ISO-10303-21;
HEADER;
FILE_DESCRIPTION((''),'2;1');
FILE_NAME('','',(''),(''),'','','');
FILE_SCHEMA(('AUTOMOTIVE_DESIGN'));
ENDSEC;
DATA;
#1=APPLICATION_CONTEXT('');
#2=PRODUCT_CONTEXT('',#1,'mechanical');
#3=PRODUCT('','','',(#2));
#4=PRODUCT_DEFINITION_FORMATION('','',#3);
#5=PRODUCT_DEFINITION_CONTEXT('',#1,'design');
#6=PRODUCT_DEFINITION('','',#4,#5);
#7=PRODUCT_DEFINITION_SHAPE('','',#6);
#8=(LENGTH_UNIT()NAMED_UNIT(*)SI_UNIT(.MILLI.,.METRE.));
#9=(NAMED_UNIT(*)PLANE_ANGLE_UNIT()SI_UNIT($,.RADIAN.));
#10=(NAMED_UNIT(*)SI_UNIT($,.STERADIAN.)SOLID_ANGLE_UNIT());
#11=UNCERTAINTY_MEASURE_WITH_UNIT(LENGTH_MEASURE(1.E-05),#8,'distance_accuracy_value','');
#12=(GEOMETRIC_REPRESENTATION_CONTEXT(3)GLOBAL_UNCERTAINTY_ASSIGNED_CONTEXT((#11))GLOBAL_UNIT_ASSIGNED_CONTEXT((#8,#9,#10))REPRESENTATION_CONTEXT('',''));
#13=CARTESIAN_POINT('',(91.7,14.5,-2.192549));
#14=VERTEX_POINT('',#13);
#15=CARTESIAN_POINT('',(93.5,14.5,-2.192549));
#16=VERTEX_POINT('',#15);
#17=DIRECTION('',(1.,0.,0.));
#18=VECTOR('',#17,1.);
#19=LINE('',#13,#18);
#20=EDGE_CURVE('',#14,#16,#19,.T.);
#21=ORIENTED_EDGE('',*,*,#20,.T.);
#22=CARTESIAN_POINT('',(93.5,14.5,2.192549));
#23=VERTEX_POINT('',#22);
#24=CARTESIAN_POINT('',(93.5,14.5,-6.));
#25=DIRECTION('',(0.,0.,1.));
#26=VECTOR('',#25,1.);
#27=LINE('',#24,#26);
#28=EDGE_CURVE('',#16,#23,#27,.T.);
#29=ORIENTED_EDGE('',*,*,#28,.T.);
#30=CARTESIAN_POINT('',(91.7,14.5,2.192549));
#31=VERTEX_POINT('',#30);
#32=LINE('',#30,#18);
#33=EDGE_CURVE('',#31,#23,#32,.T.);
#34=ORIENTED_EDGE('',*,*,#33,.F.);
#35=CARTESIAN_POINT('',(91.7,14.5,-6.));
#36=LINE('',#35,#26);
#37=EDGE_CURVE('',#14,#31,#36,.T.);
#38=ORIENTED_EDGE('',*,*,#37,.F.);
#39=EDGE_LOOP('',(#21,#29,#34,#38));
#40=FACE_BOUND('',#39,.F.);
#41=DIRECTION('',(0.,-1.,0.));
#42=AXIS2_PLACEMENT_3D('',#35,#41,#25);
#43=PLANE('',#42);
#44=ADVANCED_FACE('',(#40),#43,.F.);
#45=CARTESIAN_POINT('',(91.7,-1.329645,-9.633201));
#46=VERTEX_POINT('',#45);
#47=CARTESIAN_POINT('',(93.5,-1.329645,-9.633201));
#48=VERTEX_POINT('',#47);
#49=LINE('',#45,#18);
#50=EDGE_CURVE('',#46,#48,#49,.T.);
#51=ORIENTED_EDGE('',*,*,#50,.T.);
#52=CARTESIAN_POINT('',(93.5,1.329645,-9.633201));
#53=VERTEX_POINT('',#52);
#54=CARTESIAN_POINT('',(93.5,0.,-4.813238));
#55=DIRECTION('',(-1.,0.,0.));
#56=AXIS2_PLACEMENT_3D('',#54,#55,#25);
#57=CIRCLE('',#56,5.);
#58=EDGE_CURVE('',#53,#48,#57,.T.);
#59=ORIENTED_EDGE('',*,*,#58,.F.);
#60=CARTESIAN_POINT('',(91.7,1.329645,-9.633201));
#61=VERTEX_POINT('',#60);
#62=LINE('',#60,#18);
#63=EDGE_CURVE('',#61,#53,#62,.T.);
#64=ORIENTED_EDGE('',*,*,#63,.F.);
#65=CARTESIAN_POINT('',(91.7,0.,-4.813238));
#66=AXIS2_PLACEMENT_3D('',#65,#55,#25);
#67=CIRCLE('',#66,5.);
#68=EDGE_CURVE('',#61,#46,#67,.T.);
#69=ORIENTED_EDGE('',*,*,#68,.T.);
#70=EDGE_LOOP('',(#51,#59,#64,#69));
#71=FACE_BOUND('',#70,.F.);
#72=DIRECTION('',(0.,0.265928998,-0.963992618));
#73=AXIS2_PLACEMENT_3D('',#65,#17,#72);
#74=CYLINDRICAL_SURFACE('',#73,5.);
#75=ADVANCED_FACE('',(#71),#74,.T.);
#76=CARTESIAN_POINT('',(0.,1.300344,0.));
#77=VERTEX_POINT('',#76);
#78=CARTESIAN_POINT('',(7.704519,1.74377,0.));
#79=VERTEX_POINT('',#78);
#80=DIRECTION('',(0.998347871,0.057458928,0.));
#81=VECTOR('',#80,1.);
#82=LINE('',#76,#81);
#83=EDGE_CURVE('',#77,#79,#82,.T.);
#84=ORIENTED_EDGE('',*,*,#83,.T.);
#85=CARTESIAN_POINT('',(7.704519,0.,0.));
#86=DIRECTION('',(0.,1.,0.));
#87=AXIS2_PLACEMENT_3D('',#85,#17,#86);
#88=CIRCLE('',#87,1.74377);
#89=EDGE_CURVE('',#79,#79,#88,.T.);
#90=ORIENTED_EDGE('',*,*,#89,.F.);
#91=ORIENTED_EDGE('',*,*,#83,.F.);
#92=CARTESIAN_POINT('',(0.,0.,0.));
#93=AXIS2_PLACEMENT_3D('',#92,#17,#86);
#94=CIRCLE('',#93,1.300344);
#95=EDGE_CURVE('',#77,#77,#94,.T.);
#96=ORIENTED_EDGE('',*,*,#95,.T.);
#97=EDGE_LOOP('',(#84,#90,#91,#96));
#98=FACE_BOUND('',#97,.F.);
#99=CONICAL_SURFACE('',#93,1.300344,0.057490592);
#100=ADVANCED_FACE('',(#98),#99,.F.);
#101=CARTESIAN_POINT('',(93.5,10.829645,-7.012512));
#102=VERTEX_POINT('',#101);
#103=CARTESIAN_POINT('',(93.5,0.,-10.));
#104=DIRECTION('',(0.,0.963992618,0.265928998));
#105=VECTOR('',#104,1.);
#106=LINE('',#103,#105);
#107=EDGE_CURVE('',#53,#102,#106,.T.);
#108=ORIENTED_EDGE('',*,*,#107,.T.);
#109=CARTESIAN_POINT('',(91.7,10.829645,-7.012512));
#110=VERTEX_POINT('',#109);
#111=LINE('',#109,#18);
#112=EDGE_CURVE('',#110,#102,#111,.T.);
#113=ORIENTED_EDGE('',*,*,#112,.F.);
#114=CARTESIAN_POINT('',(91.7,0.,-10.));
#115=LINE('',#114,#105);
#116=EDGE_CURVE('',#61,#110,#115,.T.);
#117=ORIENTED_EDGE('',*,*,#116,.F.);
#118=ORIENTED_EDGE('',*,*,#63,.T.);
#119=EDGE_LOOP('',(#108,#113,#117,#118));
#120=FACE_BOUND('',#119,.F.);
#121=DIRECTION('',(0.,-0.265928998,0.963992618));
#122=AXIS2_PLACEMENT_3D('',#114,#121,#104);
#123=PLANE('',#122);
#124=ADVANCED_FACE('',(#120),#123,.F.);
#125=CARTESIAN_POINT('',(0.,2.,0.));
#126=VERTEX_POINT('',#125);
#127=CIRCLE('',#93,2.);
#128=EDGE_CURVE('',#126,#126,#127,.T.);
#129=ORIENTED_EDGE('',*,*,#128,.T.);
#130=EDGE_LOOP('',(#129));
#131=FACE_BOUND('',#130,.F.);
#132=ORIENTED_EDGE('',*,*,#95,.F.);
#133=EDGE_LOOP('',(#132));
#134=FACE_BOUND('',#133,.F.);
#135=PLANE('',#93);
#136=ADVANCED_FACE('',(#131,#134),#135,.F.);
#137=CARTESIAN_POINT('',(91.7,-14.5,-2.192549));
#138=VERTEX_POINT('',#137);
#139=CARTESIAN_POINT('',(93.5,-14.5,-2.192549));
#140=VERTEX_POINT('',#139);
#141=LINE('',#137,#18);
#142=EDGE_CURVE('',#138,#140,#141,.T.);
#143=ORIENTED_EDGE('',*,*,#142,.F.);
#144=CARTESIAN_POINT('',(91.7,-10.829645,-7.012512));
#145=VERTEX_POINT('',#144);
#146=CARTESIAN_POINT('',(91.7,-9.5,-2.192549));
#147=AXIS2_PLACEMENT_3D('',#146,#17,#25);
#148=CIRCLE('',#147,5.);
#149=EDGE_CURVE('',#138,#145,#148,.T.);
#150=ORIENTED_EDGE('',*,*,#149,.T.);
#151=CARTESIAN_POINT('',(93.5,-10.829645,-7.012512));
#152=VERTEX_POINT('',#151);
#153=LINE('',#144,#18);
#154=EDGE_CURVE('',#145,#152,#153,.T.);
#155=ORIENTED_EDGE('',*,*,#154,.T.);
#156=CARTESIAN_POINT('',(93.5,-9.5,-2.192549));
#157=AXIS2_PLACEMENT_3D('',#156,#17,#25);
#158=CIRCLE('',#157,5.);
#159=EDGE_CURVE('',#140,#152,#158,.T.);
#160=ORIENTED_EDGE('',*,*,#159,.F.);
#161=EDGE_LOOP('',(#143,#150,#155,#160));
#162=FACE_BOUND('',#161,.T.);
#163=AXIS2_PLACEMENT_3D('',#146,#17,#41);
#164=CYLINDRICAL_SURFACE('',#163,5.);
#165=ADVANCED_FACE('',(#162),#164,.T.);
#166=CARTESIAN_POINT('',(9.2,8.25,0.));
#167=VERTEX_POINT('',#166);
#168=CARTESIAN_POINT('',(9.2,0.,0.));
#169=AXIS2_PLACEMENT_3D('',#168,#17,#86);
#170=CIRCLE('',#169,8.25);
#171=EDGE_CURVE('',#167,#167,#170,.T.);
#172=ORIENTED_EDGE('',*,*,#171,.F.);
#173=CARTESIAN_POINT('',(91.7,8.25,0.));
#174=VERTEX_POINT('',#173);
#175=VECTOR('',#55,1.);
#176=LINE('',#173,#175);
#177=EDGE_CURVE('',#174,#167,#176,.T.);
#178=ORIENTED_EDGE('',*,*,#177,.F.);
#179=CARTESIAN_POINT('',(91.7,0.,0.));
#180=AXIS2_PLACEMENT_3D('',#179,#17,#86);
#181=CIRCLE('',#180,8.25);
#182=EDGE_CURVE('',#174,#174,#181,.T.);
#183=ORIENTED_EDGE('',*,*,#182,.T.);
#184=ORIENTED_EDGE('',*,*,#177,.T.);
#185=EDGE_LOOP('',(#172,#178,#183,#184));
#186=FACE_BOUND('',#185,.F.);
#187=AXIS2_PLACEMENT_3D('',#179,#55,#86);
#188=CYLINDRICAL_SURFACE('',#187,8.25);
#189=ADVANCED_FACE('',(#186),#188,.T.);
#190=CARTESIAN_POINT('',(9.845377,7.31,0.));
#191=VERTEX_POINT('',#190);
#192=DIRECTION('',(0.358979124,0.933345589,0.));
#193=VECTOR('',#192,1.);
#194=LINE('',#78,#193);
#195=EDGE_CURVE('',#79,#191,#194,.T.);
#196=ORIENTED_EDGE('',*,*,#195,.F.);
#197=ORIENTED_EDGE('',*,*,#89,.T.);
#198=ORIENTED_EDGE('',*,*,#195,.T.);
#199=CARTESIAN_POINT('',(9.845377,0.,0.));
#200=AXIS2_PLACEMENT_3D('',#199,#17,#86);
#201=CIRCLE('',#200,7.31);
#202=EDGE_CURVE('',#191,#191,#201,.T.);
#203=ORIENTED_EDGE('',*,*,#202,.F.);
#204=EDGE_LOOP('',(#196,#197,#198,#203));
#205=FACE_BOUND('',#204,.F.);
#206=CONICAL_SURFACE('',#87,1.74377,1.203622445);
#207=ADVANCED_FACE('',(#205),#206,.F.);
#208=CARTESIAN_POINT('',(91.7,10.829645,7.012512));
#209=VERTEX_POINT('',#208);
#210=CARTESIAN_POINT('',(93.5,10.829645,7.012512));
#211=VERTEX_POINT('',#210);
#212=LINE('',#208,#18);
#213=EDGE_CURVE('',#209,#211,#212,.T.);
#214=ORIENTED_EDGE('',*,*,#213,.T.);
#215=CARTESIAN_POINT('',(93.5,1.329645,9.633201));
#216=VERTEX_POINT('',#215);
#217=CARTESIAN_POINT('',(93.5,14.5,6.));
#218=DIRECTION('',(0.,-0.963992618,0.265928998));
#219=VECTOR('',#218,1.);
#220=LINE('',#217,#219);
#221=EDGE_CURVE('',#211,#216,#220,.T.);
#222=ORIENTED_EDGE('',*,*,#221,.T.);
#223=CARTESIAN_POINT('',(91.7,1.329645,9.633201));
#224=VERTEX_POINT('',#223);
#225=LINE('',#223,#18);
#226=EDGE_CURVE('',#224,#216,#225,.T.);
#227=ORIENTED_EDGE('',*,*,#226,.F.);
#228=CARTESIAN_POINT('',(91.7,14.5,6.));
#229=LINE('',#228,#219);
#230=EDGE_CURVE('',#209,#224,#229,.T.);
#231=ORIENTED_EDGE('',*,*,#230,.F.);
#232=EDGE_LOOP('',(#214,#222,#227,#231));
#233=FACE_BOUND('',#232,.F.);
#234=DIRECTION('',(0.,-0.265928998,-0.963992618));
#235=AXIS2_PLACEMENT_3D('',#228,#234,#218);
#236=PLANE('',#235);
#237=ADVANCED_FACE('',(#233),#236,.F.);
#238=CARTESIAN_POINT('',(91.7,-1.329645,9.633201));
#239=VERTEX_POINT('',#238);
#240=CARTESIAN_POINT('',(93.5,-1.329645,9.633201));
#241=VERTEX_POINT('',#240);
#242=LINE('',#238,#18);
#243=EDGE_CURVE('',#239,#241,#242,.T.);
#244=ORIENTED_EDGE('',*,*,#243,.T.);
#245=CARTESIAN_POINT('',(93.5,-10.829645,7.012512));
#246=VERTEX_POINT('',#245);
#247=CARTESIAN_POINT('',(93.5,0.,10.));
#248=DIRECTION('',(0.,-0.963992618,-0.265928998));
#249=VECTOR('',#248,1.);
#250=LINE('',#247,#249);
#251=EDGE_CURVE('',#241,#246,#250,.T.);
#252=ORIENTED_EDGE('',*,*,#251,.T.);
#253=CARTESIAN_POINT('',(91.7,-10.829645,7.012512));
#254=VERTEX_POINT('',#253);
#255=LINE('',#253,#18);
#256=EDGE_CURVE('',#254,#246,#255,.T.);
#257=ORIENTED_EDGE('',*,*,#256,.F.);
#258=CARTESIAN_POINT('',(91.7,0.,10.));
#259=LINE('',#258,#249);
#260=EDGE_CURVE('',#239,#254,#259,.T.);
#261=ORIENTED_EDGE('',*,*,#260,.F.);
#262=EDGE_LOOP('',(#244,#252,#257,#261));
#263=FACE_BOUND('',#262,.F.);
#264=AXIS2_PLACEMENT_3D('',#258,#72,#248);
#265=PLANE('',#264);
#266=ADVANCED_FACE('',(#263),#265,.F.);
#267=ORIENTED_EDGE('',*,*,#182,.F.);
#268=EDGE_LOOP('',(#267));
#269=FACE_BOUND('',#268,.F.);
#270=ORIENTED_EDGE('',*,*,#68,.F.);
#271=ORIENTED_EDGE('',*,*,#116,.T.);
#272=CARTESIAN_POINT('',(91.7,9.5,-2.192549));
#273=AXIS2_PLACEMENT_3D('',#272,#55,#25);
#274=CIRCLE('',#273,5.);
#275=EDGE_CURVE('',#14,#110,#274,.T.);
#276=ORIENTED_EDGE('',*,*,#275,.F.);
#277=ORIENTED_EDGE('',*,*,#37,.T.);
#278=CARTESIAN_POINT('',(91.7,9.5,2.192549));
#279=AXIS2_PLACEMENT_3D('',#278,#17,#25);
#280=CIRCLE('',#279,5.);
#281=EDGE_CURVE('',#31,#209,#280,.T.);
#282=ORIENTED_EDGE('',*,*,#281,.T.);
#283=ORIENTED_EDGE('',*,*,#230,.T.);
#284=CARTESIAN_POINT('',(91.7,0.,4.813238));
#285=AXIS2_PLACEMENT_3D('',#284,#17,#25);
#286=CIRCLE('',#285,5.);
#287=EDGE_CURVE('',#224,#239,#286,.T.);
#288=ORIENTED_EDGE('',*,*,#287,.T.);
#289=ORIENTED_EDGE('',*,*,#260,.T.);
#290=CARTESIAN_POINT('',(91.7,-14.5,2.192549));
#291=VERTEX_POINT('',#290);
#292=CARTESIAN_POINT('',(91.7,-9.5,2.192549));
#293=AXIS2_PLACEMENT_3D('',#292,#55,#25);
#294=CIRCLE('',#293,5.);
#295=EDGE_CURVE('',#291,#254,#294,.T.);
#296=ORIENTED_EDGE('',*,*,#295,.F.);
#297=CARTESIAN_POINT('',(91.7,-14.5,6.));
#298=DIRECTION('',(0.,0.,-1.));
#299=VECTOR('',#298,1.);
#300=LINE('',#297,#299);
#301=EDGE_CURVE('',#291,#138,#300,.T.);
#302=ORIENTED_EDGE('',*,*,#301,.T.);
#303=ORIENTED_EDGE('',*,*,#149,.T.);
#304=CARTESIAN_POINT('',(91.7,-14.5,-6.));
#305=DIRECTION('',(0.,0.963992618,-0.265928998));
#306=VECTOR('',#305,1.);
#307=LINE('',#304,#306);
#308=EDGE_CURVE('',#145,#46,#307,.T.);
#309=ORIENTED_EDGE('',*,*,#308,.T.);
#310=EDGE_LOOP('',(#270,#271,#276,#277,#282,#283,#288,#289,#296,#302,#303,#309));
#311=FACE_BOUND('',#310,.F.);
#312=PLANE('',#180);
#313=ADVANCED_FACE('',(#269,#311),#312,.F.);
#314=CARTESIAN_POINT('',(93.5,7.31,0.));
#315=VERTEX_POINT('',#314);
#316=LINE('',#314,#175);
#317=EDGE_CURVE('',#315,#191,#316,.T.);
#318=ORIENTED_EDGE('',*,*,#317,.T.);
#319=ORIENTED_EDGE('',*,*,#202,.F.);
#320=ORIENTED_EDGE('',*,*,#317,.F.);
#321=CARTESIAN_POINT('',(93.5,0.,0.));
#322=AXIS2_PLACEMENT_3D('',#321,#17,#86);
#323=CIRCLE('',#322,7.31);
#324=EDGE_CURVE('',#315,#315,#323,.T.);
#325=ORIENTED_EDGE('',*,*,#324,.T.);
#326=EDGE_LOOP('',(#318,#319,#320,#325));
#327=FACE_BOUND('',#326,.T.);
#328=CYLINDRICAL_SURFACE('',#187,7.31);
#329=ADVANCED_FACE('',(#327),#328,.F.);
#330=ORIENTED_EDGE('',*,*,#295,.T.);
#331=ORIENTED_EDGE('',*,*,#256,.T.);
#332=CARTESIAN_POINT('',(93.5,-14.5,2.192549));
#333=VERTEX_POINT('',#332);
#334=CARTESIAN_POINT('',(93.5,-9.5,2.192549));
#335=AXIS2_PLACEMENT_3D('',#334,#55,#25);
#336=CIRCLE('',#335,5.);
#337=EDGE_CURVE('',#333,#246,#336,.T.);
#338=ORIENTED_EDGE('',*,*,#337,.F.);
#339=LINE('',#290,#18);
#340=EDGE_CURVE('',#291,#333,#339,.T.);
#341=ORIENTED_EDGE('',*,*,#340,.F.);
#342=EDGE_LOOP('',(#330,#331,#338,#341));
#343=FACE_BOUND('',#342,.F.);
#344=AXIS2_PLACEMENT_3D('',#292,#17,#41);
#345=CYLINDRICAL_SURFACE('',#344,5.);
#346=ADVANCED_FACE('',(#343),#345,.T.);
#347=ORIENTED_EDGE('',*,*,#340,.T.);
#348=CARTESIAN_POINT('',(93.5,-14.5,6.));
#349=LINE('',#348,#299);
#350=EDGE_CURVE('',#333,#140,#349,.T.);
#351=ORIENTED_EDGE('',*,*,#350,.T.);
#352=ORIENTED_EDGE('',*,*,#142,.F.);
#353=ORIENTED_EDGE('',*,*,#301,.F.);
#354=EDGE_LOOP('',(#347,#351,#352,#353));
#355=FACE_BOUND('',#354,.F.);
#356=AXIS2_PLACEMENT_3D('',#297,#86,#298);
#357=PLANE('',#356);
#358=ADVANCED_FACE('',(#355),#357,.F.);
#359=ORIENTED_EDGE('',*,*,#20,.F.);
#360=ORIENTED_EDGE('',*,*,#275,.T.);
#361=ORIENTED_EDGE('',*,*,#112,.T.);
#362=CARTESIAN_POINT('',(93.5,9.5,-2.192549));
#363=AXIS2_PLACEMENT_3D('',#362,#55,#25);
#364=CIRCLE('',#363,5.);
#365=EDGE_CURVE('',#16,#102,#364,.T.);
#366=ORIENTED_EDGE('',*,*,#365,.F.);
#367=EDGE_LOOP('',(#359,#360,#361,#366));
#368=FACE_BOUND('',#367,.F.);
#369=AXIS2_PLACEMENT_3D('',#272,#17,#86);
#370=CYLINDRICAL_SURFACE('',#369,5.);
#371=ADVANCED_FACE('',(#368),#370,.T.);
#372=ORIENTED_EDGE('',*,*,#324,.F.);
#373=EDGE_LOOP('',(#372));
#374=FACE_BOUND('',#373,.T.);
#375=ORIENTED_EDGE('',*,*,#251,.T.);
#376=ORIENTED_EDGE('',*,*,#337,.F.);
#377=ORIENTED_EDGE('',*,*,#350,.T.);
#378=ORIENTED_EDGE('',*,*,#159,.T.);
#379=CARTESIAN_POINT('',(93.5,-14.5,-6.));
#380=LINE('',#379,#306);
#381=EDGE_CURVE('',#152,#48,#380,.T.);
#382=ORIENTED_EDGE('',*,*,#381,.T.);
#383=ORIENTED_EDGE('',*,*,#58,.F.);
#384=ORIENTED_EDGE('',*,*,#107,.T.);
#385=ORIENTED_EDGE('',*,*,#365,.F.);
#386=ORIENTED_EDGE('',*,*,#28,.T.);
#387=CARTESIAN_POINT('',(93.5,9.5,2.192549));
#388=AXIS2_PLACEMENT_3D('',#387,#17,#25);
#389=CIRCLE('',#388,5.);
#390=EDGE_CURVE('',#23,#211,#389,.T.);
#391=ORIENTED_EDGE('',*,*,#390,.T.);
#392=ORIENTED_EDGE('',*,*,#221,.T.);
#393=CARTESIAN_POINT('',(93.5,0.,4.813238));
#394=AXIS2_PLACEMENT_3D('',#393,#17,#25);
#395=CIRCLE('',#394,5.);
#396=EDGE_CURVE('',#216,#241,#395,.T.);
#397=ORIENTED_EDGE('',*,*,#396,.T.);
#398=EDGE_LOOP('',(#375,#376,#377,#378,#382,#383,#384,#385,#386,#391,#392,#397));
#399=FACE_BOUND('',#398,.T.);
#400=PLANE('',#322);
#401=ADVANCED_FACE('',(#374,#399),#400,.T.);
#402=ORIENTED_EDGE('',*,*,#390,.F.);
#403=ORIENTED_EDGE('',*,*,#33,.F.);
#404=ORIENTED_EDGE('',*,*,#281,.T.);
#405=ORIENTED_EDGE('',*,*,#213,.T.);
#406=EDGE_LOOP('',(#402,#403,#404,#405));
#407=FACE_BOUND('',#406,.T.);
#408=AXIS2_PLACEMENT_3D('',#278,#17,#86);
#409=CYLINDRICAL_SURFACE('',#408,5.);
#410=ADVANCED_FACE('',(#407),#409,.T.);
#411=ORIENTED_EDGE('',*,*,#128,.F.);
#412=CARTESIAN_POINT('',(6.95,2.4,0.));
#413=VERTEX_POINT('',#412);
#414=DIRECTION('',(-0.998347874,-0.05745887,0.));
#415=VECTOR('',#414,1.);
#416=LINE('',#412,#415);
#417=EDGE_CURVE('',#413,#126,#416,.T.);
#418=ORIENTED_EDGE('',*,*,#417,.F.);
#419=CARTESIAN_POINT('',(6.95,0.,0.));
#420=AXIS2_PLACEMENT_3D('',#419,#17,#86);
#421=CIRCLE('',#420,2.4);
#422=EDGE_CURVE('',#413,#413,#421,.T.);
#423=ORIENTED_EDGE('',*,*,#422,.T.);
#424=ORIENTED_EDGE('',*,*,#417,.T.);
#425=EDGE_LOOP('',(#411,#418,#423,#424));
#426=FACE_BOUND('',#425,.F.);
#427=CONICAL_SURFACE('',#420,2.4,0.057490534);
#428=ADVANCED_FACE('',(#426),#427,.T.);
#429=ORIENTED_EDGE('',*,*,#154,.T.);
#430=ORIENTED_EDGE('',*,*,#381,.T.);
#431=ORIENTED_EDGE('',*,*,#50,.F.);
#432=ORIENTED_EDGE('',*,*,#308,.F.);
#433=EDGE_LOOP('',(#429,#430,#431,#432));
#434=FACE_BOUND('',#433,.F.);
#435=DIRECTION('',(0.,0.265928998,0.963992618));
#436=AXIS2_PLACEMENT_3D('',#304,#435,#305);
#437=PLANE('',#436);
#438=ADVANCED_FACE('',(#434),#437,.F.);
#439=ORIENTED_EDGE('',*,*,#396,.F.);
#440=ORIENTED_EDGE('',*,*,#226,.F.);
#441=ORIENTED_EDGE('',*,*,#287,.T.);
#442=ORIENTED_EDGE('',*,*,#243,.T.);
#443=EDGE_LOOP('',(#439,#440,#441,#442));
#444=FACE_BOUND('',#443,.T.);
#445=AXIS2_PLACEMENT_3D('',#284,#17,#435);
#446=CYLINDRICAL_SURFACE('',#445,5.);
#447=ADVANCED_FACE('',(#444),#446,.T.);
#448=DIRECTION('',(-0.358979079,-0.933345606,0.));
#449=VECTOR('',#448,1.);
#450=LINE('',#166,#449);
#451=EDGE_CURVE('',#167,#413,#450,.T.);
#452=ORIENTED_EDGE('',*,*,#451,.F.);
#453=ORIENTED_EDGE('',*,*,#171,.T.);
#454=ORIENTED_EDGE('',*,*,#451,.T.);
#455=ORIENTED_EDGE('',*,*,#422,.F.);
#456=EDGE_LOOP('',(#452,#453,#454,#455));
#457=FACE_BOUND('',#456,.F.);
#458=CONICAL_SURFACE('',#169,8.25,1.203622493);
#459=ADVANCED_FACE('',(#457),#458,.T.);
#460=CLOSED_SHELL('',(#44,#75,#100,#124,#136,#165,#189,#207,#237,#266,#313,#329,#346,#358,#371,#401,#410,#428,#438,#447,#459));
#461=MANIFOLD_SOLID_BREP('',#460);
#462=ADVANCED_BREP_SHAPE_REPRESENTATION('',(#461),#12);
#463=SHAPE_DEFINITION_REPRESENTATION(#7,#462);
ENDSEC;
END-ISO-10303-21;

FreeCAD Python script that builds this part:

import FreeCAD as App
import Part
import Sketcher
Q = App.Units.Quantity


def edges_at(feature, points):
    """Names of the edges that pass closest to the given points."""
    edges = feature.Shape.Edges
    near = lambda p: min(range(len(edges)), key=lambda i: edges[i].distToShape(Part.Vertex(*p))[0])
    return sorted({f"Edge{near(p) + 1}" for p in points})


def add_polygon(sketch, points):
    """Adds a closed chain of lines whose ends are joined by coincident constraints."""
    first, n = sketch.GeometryCount, len(points)
    for a, b in zip(points, points[1:] + points[:1]):
        sketch.addGeometry(Part.LineSegment(App.Vector(*a, 0), App.Vector(*b, 0)), False)
    for i in range(n):
        sketch.addConstraint(Sketcher.Constraint("Coincident", first + i, 2, first + (i + 1) % n, 1))

doc = App.newDocument("Part")
params = doc.addObject("Spreadsheet::Sheet", "Params")
for row, (alias, value) in enumerate([
    ("sketch1_width", "82.5 mm"),
    ("sketch1_height", "0.94 mm"),
    ("revolution_angle", "360 deg"),
    ("sketch2_diameter", "14.62 mm"),
    ("sketch2_height", "12 mm"),
    ("pad1_length", "1.8 mm"),
    ("fillet_radius", "5 mm"),
], start=1):
    params.set(f"A{row}", alias)
    params.set(f"B{row}", "=" + value)
    params.setAlias(f"B{row}", alias)

body = doc.addObject("PartDesign::Body", "Body")

sketch1 = body.newObject("Sketcher::SketchObject", "Sketch")
sketch1.AttachmentSupport = (doc.getObject("XY_Plane"), [""])
sketch1.MapMode = "FlatFace"
add_polygon(sketch1, [(91.7, 8.2), (9.2, 8.2), (7, 2.4), (0, 2), (0, 1.3), (7.7, 1.7), (9.8, 7.3), (91.7, 7.3)])
sketch1.addConstraint([
    Sketcher.Constraint("Horizontal", 0),
    Sketcher.Constraint("Vertical", 3),
    Sketcher.Constraint("Horizontal", 6),
    Sketcher.Constraint("Vertical", 7),
    Sketcher.Constraint("PointOnObject", 2, 2, -2),
    Sketcher.Constraint("Parallel", 2, 4),
    Sketcher.Constraint("Parallel", 1, 5),
    Sketcher.Constraint("DistanceX", 0, 2, 0, 1, Q("82.5 mm")),
    Sketcher.Constraint("DistanceY", -1, 1, 2, 2, Q("2 mm")),
    Sketcher.Constraint("DistanceY", 7, 1, 7, 2, Q("0.94 mm")),
    Sketcher.Constraint("DistanceX", -1, 1, 0, 2, Q("9.2 mm")),
    Sketcher.Constraint("DistanceY", -1, 1, 1, 2, Q("2.4 mm")),
    Sketcher.Constraint("DistanceY", -1, 1, 0, 2, Q("8.25 mm")),
    Sketcher.Constraint("DistanceX", -1, 1, 1, 2, Q("6.95 mm")),
    Sketcher.Constraint("Distance", 4, Q("7.717269 mm")),
    Sketcher.Constraint("Distance", 5, Q("5.96374 mm")),
])
sketch1.setExpression("Constraints[15]", "Params.sketch1_width")
sketch1.setExpression("Constraints[17]", "Params.sketch1_height")
revolution = body.newObject("PartDesign::Revolution", "Revolution")
revolution.Profile = sketch1
revolution.ReferenceAxis = (sketch1, ["H_Axis"])
revolution.setExpression("Angle", "Params.revolution_angle")

sketch2 = body.newObject("Sketcher::SketchObject", "Sketch001")
sketch2.AttachmentSupport = (doc.getObject("YZ_Plane"), [""])
sketch2.MapMode = "FlatFace"
sketch2.AttachmentOffset = App.Placement(App.Vector(0, 0, 91.7), App.Rotation())
add_polygon(sketch2, [(-14, 6), (-14, -6), (0, -10), (14, -6), (14, 6), (0, 10)])
sketch2.addGeometry(Part.Circle(App.Vector(0, 0, 0), App.Vector(0, 0, 1), 7), False)
sketch2.addConstraint([
    Sketcher.Constraint("Vertical", 0),
    Sketcher.Constraint("Vertical", 3),
    Sketcher.Constraint("Coincident", 6, 3, -1, 1),
    Sketcher.Constraint("Symmetric", 0, 2, 3, 2, -1, 1),
    Sketcher.Constraint("Symmetric", 1, 2, 4, 2, -1, 1),
    Sketcher.Constraint("PointOnObject", 1, 2, -2),
    Sketcher.Constraint("Parallel", 2, 5),
    Sketcher.Constraint("Horizontal", 0, 2, 2, 2),
    Sketcher.Constraint("Diameter", 6, Q("14.62 mm")),
    Sketcher.Constraint("DistanceY", 0, 2, 0, 1, Q("12 mm")),
    Sketcher.Constraint("DistanceY", 1, 2, -1, 1, Q("10 mm")),
    Sketcher.Constraint("DistanceX", 0, 2, 2, 2, Q("29 mm")),
])
sketch2.setExpression("Constraints[14]", "Params.sketch2_diameter")
sketch2.setExpression("Constraints[15]", "Params.sketch2_height")
pad1 = body.newObject("PartDesign::Pad", "Pad")
pad1.Profile = sketch2
pad1.setExpression("Length", "Params.pad1_length")
doc.recompute()

fillet = body.newObject("PartDesign::Fillet", "Fillet")
fillet.Base = (pad1, edges_at(pad1, [
    (92.6, -14.5, 6),
    (92.6, -14.5, -6),
    (92.6, 0, -10),
    (92.6, 14.5, -6),
    (92.6, 14.5, 6),
    (92.6, 0, 10),
]))
fillet.setExpression("Radius", "Params.fillet_radius")

doc.recompute()
